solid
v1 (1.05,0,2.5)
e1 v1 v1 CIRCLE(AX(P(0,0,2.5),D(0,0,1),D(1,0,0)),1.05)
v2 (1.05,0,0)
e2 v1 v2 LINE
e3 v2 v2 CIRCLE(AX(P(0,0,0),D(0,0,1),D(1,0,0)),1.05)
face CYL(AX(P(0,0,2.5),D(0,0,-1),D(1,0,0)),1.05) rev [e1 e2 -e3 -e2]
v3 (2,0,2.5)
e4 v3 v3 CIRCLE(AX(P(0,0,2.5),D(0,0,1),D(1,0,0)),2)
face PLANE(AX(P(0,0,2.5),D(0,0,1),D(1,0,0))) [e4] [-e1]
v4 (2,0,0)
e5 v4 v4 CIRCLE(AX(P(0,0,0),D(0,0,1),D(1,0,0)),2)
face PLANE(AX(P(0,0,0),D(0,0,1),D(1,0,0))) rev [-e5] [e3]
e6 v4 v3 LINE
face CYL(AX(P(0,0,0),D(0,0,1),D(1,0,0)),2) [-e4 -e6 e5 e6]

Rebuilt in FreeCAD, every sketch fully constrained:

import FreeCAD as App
import Part
import Sketcher
from FreeCAD import Vector

doc = App.newDocument("Part")
body = doc.addObject("PartDesign::Body", "Body")

sketch1 = body.newObject("Sketcher::SketchObject", "Sketch")
sketch1.AttachmentSupport = (doc.getObject("XZ_Plane"), [""])
sketch1.MapMode = "FlatFace"
sketch1.addGeometry([
    Part.LineSegment(Vector(2, 0, 0), Vector(1.1, 0, 0)),
    Part.LineSegment(Vector(1.1, 0, 0), Vector(1.1, 2.5, 0)),
    Part.LineSegment(Vector(1.1, 2.5, 0), Vector(2, 2.5, 0)),
    Part.LineSegment(Vector(2, 2.5, 0), Vector(2, 0, 0)),
], False)
sketch1.addConstraint([
    Sketcher.Constraint("Coincident", 0, 2, 1, 1),
    Sketcher.Constraint("Coincident", 1, 2, 2, 1),
    Sketcher.Constraint("Coincident", 2, 2, 3, 1),
    Sketcher.Constraint("Coincident", 3, 2, 0, 1),
    Sketcher.Constraint("Horizontal", 0),
    Sketcher.Constraint("Vertical", 1),
    Sketcher.Constraint("Horizontal", 2),
    Sketcher.Constraint("Vertical", 3),
    Sketcher.Constraint("PointOnObject", 0, 2, -1),
    Sketcher.Constraint("DistanceY", 1, 1, 1, 2, 2.5),
    Sketcher.Constraint("DistanceX", -1, 1, 2, 2, 2.0),
    Sketcher.Constraint("DistanceX", 0, 2, 0, 1, 0.95),
])
revolution = body.newObject("PartDesign::Revolution", "Revolution")
revolution.Profile = sketch1
revolution.ReferenceAxis = (sketch1, ["V_Axis"])
revolution.Angle = 360

doc.recompute()
